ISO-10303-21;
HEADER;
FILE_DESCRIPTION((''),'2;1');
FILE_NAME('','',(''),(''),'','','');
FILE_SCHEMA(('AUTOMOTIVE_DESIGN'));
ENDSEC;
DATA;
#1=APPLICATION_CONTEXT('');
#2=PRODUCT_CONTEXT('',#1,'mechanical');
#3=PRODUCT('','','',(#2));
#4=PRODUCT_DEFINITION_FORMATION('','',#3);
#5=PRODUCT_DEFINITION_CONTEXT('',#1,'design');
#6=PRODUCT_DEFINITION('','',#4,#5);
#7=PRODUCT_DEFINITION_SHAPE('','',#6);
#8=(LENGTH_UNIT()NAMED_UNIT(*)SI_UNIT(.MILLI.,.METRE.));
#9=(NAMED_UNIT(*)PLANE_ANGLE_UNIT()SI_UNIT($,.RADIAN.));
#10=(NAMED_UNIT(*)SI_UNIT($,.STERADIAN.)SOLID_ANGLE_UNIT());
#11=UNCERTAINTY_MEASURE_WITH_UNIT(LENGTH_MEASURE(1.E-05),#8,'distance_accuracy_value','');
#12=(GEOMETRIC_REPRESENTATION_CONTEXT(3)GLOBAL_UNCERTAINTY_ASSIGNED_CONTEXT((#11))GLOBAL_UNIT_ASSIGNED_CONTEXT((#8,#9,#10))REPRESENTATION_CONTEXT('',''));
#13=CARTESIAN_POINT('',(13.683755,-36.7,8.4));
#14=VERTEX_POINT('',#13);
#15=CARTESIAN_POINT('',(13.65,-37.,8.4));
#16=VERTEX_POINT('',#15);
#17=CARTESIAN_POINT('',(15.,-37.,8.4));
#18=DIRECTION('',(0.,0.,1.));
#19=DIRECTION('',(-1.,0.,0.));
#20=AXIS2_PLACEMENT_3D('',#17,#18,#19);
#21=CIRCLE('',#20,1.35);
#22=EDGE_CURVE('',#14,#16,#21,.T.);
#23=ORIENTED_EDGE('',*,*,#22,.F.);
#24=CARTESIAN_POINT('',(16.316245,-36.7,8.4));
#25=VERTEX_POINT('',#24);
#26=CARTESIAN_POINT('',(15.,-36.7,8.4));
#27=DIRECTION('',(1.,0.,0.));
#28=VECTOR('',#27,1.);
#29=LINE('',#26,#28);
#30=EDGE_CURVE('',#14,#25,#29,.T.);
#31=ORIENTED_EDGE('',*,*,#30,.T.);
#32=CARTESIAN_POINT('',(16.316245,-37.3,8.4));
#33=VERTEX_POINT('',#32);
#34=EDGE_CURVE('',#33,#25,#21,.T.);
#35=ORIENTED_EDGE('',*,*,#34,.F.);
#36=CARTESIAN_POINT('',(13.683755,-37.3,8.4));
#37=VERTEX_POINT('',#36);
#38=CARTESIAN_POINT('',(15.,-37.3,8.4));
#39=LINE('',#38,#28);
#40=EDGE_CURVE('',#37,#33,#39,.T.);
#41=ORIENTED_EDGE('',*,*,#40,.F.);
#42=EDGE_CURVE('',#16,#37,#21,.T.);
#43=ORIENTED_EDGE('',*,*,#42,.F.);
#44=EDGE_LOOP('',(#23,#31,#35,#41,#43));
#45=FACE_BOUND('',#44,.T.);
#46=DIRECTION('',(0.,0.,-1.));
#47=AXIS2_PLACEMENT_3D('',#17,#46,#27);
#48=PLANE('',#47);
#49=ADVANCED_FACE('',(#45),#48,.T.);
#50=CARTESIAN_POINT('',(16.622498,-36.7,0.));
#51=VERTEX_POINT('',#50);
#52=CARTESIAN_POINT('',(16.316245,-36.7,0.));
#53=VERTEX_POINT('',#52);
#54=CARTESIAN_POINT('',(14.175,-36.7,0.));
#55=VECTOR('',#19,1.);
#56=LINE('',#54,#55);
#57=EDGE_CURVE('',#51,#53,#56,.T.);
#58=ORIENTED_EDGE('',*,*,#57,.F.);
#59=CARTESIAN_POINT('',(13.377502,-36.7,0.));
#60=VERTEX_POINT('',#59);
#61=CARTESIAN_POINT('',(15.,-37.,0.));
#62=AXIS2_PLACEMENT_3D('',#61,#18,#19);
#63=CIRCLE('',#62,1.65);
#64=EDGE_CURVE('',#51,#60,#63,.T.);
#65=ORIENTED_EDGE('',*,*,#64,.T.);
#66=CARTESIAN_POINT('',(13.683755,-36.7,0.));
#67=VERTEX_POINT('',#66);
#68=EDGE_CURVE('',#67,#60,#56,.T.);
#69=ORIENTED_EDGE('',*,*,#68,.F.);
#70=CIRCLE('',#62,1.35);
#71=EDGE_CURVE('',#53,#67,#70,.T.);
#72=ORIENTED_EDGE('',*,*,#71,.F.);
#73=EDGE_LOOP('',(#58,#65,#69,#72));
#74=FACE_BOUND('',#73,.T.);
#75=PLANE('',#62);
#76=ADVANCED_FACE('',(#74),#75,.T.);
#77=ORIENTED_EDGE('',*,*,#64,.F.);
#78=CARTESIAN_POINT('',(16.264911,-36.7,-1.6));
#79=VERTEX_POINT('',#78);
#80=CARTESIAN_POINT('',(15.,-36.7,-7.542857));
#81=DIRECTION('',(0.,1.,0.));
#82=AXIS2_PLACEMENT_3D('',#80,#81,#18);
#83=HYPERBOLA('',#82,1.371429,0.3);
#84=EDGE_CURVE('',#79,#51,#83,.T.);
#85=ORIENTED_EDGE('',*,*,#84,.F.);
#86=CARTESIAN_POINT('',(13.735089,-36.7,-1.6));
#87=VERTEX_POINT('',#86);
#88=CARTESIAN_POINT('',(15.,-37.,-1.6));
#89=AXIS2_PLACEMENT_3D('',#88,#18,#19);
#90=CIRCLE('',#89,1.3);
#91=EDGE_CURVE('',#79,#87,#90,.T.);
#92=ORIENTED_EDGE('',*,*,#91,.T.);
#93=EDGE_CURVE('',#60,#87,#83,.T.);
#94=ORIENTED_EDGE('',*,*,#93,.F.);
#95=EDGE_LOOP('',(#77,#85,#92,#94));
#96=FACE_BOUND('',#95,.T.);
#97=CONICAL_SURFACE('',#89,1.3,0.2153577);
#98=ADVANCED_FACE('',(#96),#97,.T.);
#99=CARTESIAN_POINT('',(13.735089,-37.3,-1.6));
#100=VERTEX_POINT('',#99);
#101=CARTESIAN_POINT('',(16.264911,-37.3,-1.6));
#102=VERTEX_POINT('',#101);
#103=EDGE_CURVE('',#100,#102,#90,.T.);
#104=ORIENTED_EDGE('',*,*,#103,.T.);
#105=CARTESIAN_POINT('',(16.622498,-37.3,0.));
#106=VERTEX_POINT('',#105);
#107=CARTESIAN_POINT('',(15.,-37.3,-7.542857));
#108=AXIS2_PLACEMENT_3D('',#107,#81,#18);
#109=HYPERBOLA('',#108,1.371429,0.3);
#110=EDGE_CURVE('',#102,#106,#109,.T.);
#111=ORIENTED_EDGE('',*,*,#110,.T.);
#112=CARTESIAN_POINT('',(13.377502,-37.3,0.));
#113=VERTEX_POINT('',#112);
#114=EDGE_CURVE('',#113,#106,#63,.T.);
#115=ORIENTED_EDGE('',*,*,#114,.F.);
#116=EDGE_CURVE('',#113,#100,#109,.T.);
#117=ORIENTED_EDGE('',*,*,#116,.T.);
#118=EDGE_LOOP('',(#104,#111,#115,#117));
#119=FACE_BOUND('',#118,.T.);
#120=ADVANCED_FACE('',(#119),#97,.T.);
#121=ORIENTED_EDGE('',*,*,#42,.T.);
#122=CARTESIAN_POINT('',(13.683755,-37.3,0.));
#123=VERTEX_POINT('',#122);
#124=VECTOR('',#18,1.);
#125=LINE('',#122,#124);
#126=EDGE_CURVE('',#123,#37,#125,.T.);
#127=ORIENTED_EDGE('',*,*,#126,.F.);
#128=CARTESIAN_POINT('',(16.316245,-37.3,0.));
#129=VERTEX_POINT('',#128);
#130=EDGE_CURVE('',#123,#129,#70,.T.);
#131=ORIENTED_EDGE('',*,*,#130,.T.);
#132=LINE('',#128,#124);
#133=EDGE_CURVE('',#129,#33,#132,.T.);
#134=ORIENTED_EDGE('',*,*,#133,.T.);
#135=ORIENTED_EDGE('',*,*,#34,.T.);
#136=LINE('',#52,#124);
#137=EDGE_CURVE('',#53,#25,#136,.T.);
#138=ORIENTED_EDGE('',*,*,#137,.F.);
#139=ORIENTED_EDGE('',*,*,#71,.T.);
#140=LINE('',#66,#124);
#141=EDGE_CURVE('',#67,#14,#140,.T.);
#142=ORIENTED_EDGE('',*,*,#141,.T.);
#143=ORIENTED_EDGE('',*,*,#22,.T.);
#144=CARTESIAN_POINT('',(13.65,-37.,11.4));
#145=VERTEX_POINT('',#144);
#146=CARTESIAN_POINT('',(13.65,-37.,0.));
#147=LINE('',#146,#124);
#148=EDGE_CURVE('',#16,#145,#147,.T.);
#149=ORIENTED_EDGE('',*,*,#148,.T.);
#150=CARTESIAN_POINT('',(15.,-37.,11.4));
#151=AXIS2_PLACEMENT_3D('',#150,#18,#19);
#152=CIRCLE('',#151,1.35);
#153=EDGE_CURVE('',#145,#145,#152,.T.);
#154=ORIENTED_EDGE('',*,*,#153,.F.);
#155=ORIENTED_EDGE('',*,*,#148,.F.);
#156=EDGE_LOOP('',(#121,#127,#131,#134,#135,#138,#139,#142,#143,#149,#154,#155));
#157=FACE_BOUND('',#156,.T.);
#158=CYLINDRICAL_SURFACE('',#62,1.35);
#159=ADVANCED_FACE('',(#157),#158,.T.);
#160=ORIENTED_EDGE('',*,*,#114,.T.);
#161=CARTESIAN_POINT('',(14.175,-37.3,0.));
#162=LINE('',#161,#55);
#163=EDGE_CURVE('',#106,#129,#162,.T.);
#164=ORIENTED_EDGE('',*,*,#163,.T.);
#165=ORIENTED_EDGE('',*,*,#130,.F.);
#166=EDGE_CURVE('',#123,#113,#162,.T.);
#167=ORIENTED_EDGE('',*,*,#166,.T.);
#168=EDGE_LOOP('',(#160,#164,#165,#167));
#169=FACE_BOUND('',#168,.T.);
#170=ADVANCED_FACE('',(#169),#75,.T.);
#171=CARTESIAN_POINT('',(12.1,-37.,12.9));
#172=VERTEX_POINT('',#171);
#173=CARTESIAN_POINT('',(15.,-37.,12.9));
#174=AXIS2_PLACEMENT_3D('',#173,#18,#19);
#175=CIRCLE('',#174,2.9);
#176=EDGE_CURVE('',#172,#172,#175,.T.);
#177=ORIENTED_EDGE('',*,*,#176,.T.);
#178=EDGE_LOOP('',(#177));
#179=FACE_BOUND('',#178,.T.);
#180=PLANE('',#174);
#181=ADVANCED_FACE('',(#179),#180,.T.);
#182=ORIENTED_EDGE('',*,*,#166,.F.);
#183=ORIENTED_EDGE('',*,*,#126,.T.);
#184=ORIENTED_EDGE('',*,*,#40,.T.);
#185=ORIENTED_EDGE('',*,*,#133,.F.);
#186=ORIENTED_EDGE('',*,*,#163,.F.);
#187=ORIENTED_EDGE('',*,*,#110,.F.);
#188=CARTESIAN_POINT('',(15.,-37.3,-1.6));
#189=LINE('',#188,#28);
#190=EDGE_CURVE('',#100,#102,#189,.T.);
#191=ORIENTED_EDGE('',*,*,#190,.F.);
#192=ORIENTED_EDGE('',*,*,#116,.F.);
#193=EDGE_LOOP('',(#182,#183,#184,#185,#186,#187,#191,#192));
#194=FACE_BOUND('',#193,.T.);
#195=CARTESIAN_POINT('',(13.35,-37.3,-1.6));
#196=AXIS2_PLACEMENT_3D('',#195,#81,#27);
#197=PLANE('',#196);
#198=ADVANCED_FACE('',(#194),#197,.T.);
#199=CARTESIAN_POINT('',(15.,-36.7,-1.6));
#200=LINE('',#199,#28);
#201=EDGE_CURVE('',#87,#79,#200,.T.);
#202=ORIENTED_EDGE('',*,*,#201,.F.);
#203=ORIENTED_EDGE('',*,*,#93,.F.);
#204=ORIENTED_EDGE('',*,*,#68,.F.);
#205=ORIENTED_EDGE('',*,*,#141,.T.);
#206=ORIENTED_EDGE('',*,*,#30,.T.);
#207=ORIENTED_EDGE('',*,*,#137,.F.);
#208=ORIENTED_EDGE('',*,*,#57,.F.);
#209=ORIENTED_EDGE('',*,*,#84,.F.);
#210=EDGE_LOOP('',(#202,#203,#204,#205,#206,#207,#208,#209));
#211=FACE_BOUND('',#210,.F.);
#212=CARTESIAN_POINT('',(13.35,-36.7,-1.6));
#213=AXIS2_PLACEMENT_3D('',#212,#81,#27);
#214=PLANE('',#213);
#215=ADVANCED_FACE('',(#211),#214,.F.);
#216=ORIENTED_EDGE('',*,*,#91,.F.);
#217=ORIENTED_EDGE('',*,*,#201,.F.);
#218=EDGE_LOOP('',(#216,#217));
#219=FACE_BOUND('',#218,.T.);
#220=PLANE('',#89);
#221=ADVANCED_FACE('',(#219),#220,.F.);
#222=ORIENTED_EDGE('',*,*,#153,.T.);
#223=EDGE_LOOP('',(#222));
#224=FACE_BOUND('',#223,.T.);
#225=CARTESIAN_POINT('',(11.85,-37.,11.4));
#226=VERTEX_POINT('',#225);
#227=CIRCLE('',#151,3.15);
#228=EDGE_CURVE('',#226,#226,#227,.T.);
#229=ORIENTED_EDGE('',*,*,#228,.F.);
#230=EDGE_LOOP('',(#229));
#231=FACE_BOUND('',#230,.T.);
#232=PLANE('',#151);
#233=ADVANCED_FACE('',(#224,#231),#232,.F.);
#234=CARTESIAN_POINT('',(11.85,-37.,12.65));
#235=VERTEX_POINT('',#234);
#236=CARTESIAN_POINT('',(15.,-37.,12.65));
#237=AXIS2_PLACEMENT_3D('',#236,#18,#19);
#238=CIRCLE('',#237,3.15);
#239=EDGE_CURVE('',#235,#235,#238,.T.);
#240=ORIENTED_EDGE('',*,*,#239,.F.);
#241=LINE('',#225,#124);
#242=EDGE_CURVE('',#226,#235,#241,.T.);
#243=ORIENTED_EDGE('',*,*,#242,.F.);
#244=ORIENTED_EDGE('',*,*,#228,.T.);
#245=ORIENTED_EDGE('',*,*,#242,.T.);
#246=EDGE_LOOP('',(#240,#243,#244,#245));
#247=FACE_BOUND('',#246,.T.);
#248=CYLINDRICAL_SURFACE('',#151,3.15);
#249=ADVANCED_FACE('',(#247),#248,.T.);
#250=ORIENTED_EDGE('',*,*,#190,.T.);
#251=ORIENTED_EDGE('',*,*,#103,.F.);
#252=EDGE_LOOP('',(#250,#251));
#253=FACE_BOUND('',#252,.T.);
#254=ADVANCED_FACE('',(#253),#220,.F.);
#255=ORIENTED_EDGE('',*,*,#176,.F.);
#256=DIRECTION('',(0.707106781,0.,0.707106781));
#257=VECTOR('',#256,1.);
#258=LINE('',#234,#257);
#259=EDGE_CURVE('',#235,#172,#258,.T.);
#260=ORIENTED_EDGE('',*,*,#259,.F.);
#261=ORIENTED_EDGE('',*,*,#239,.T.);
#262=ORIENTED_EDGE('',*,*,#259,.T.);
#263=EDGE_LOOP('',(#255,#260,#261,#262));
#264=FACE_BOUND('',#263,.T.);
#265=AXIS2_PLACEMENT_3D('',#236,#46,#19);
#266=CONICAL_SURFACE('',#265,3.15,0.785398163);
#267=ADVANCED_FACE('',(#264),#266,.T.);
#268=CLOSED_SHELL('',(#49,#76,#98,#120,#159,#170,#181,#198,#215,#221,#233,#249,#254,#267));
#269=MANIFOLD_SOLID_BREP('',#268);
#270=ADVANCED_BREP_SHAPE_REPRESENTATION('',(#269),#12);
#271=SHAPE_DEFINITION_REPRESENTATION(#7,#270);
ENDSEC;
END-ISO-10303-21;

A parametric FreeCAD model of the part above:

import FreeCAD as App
import Part
import Sketcher

V = App.Vector
Q = App.Units.Quantity


def edges_at(feature, points):
    """Names of the edges that pass closest to the given points."""
    edges = feature.Shape.Edges
    near = lambda p: min(range(len(edges)), key=lambda i: edges[i].distToShape(Part.Vertex(*p))[0])
    return sorted({f"Edge{near(p) + 1}" for p in points})

doc = App.newDocument("Part")
params = doc.addObject("Spreadsheet::Sheet", "Params")
for row, (alias, value) in enumerate([
    ("sketch1_width", "0.3 mm"),
    ("sketch1_width2", "1.3 mm"),
    ("sketch1_width3", "1.8 mm"),
    ("sketch1_height", "11.4 mm"),
    ("sketch1_height2", "14.5 mm"),
    ("revolution_angle", "360 deg"),
    ("chamfer_size", "0.25 mm"),
    ("sketch2_width", "3.3 mm"),
    ("sketch2_height", "0.6 mm"),
    ("pocket1_length", "10 mm"),
], start=1):
    params.set(f"A{row}", alias)
    params.set(f"B{row}", "=" + value)
    params.setAlias(f"B{row}", alias)

body = doc.addObject("PartDesign::Body", "Body")

sketch1 = doc.addObject("Sketcher::SketchObject", "Sketch")
body.addObject(sketch1)
sketch1.AttachmentSupport = (doc.XZ_Plane, [""])
sketch1.MapMode = "FlatFace"
sketch1.addGeometry([
    Part.LineSegment(V(-1.35, 13, 0), V(-1.35, 1.6, 0)),
    Part.LineSegment(V(-1.35, 1.6, 0), V(-1.65, 1.6, 0)),
    Part.LineSegment(V(-1.65, 1.6, 0), V(-1.3, 0, 0)),
    Part.LineSegment(V(-1.3, 0, 0), V(0, 0, 0)),
    Part.LineSegment(V(0, 0, 0), V(0, 14.5, 0)),
    Part.LineSegment(V(0, 14.5, 0), V(-3.15, 14.5, 0)),
    Part.LineSegment(V(-3.15, 14.5, 0), V(-3.15, 13, 0)),
    Part.LineSegment(V(-3.15, 13, 0), V(-1.35, 13, 0)),
], False)
sketch1.addConstraint([
    Sketcher.Constraint("Coincident", 0, 2, 1, 1),
    Sketcher.Constraint("Coincident", 1, 2, 2, 1),
    Sketcher.Constraint("Coincident", 2, 2, 3, 1),
    Sketcher.Constraint("Coincident", 3, 2, 4, 1),
    Sketcher.Constraint("Coincident", 4, 2, 5, 1),
    Sketcher.Constraint("Coincident", 5, 2, 6, 1),
    Sketcher.Constraint("Coincident", 6, 2, 7, 1),
    Sketcher.Constraint("Coincident", 7, 2, 0, 1),
    Sketcher.Constraint("Vertical", 0),
    Sketcher.Constraint("Horizontal", 1),
    Sketcher.Constraint("Horizontal", 3),
    Sketcher.Constraint("Vertical", 4),
    Sketcher.Constraint("Horizontal", 5),
    Sketcher.Constraint("Vertical", 6),
    Sketcher.Constraint("Horizontal", 7),
    Sketcher.Constraint("Coincident", 3, 2, -1, 1),
    Sketcher.Constraint("DistanceX", 1, 2, 1, 1, Q("0.3 mm")),
    Sketcher.Constraint("DistanceX", 3, 1, 3, 2, Q("1.3 mm")),
    Sketcher.Constraint("DistanceX", 7, 1, 7, 2, Q("1.8 mm")),
    Sketcher.Constraint("DistanceY", 0, 2, 0, 1, Q("11.4 mm")),
    Sketcher.Constraint("DistanceY", 4, 1, 4, 2, Q("14.5 mm")),
    Sketcher.Constraint("DistanceY", 6, 2, 6, 1, Q("1.5 mm")),
    Sketcher.Constraint("DistanceX", 5, 2, 5, 1, Q("3.15 mm")),
])
sketch1.setExpression("Constraints[16]", "Params.sketch1_width")
sketch1.setExpression("Constraints[17]", "Params.sketch1_width2")
sketch1.setExpression("Constraints[18]", "Params.sketch1_width3")
sketch1.setExpression("Constraints[19]", "Params.sketch1_height")
sketch1.setExpression("Constraints[20]", "Params.sketch1_height2")
revolution = doc.addObject("PartDesign::Revolution", "Revolution")
body.addObject(revolution)
revolution.Profile = sketch1
revolution.ReferenceAxis = (sketch1, ["V_Axis"])
revolution.setExpression("Angle", "Params.revolution_angle")
doc.recompute()

chamfer = doc.addObject("PartDesign::Chamfer", "Chamfer")
body.addObject(chamfer)
chamfer.Base = (revolution, edges_at(revolution, [(3.15, 0, 14.5)]))
chamfer.setExpression("Size", "Params.chamfer_size")

sketch2 = doc.addObject("Sketcher::SketchObject", "Sketch001")
body.addObject(sketch2)
sketch2.AttachmentSupport = (doc.XY_Plane, [""])
sketch2.MapMode = "FlatFace"
sketch2.addGeometry([
    Part.LineSegment(V(-1.6, -0.3, 0), V(-1.6, 0.3, 0)),
    Part.LineSegment(V(-1.6, 0.3, 0), V(1.6, 0.3, 0)),
    Part.LineSegment(V(1.6, 0.3, 0), V(1.6, -0.3, 0)),
    Part.LineSegment(V(1.6, -0.3, 0), V(-1.6, -0.3, 0)),
], False)
sketch2.addConstraint([
    Sketcher.Constraint("Coincident", 0, 2, 1, 1),
    Sketcher.Constraint("Coincident", 1, 2, 2, 1),
    Sketcher.Constraint("Coincident", 2, 2, 3, 1),
    Sketcher.Constraint("Coincident", 3, 2, 0, 1),
    Sketcher.Constraint("Vertical", 0),
    Sketcher.Constraint("Horizontal", 1),
    Sketcher.Constraint("Vertical", 2),
    Sketcher.Constraint("Horizontal", 3),
    Sketcher.Constraint("Symmetric", 0, 2, 2, 2, -1, 1),
    Sketcher.Constraint("DistanceX", 1, 1, 1, 2, Q("3.3 mm")),
    Sketcher.Constraint("DistanceY", 0, 1, 0, 2, Q("0.6 mm")),
])
sketch2.setExpression("Constraints[9]", "Params.sketch2_width")
sketch2.setExpression("Constraints[10]", "Params.sketch2_height")
pocket1 = doc.addObject("PartDesign::Pocket", "Pocket")
body.addObject(pocket1)
pocket1.Profile = sketch2
pocket1.setExpression("Length", "Params.pocket1_length")
pocket1.Reversed = True
body2 = doc.addObject("PartDesign::Body", "Body001")
doc.recompute()

body.Placement = App.Placement(V(15, -37, -1.6), App.Rotation(V(0, 0, 1), 0))
boolean = doc.addObject("PartDesign::Boolean", "Boolean")
body2.addObject(boolean)
boolean.Type = "Fuse"
boolean.addObjects([body])

doc.recompute()
